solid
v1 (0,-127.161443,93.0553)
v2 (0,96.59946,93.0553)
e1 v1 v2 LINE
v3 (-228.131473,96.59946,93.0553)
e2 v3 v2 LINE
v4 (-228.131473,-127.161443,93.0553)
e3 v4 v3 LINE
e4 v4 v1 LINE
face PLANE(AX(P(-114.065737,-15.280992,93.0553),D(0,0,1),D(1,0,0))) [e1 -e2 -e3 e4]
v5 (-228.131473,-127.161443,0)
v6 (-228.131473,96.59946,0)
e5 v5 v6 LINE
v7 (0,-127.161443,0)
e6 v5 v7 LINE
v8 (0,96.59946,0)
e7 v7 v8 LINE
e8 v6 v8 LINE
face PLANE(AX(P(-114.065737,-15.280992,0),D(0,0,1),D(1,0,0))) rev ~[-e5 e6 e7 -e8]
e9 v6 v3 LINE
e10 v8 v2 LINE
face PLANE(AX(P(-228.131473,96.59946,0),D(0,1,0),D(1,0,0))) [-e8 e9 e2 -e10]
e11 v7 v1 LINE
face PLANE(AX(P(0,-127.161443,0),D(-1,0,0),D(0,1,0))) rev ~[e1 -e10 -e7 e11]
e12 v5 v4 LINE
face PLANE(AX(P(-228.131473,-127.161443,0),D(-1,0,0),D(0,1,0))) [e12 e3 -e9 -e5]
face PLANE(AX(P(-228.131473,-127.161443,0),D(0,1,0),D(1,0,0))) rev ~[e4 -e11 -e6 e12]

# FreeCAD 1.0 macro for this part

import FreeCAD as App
import Part
import Sketcher


def add_polygon(sketch, points):
    """Adds a closed chain of lines whose ends are joined by coincident constraints."""
    first, n = sketch.GeometryCount, len(points)
    for a, b in zip(points, points[1:] + points[:1]):
        sketch.addGeometry(Part.LineSegment(App.Vector(*a, 0), App.Vector(*b, 0)), False)
    for i in range(n):
        sketch.addConstraint(Sketcher.Constraint("Coincident", first + i, 2, first + (i + 1) % n, 1))

doc = App.newDocument("Part")
body = doc.addObject("PartDesign::Body", "Body")

sketch1 = body.newObject("Sketcher::SketchObject", "Sketch")
sketch1.AttachmentSupport = (doc.getObject("XY_Plane"), [""])
sketch1.MapMode = "FlatFace"
add_polygon(sketch1, [(-228, 97), (-228, -127), (0, -127), (0, 97)])
sketch1.addConstraint([
    Sketcher.Constraint("Vertical", 0),
    Sketcher.Constraint("Horizontal", 1),
    Sketcher.Constraint("Vertical", 2),
    Sketcher.Constraint("Horizontal", 3),
    Sketcher.Constraint("PointOnObject", 1, 2, -2),
    Sketcher.Constraint("DistanceX", 1, 1, 1, 2, 228.131473),
    Sketcher.Constraint("DistanceY", 0, 2, 0, 1, 223.760903),
    Sketcher.Constraint("DistanceY", -1, 1, 2, 2, 96.59946),
])
pad1 = body.newObject("PartDesign::Pad", "Pad")
pad1.Profile = sketch1
pad1.Length = 93.0553

doc.recompute()
